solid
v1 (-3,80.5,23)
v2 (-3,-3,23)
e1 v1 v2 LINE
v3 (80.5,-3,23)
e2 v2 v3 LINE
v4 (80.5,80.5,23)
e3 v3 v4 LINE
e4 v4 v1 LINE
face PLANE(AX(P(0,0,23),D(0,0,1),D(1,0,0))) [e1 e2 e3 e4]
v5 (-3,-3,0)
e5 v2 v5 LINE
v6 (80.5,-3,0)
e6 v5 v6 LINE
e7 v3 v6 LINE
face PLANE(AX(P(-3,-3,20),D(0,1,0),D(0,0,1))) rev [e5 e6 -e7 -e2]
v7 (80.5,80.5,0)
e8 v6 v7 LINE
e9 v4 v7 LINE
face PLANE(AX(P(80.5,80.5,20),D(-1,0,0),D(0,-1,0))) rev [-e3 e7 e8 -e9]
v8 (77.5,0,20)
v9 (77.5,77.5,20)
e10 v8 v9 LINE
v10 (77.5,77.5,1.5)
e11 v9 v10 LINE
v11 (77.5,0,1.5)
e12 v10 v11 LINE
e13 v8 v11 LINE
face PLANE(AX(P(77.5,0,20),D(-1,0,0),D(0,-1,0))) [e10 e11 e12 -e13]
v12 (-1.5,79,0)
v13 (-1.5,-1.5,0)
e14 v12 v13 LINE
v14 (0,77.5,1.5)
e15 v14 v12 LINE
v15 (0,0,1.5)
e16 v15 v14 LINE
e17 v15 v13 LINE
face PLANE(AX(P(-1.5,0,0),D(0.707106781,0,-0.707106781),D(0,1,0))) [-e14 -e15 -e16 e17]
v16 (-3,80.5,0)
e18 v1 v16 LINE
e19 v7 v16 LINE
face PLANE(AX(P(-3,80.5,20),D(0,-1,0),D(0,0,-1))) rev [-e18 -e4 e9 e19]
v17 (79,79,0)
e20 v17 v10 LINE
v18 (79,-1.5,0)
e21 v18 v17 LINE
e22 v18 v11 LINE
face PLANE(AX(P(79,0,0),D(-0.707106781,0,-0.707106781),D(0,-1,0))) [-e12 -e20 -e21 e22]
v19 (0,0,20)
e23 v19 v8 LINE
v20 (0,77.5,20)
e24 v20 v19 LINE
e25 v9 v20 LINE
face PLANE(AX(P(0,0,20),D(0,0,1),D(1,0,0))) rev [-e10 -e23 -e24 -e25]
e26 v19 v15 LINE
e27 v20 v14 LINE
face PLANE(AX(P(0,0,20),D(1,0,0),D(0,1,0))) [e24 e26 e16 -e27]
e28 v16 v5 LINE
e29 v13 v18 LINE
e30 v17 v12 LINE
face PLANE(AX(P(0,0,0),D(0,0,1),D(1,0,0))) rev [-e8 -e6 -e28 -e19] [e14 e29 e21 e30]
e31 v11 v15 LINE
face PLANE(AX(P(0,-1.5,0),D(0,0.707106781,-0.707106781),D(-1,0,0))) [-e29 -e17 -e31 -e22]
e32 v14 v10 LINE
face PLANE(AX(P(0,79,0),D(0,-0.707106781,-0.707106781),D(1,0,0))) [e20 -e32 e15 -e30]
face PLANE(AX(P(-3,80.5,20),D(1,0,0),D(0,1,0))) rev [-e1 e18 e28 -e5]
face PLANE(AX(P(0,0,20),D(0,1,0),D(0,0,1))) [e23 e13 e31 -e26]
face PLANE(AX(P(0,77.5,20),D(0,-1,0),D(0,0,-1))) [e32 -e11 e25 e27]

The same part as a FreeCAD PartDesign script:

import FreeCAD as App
import Part
import Sketcher
Q = App.Units.Quantity


def edges_at(feature, points):
    """Names of the edges that pass closest to the given points."""
    edges = feature.Shape.Edges
    near = lambda p: min(range(len(edges)), key=lambda i: edges[i].distToShape(Part.Vertex(*p))[0])
    return sorted({f"Edge{near(p) + 1}" for p in points})

doc = App.newDocument("Part")
body = doc.addObject("PartDesign::Body", "Body")

sketch1 = body.newObject("Sketcher::SketchObject", "Sketch")
sketch1.AttachmentSupport = (doc.getObject("XY_Plane"), [""])
sketch1.MapMode = "FlatFace"
sketch1.addGeometry([
    Part.LineSegment(App.Vector(-3, 80, 0), App.Vector(-3, -3, 0)),
    Part.LineSegment(App.Vector(-3, -3, 0), App.Vector(80, -3, 0)),
    Part.LineSegment(App.Vector(80, -3, 0), App.Vector(80, 80, 0)),
    Part.LineSegment(App.Vector(80, 80, 0), App.Vector(-3, 80, 0)),
    Part.LineSegment(App.Vector(78, 0, 0), App.Vector(0, 0, 0)),
    Part.LineSegment(App.Vector(0, 0, 0), App.Vector(0, 78, 0)),
    Part.LineSegment(App.Vector(0, 78, 0), App.Vector(78, 78, 0)),
    Part.LineSegment(App.Vector(78, 78, 0), App.Vector(78, 0, 0)),
], False)
sketch1.addConstraint([
    Sketcher.Constraint("Coincident", 0, 2, 1, 1),
    Sketcher.Constraint("Coincident", 1, 2, 2, 1),
    Sketcher.Constraint("Coincident", 2, 2, 3, 1),
    Sketcher.Constraint("Coincident", 3, 2, 0, 1),
    Sketcher.Constraint("Coincident", 4, 2, 5, 1),
    Sketcher.Constraint("Coincident", 5, 2, 6, 1),
    Sketcher.Constraint("Coincident", 6, 2, 7, 1),
    Sketcher.Constraint("Coincident", 7, 2, 4, 1),
    Sketcher.Constraint("Vertical", 0),
    Sketcher.Constraint("Horizontal", 1),
    Sketcher.Constraint("Vertical", 2),
    Sketcher.Constraint("Horizontal", 3),
    Sketcher.Constraint("Horizontal", 4),
    Sketcher.Constraint("Vertical", 5),
    Sketcher.Constraint("Horizontal", 6),
    Sketcher.Constraint("Vertical", 7),
    Sketcher.Constraint("Coincident", 4, 2, -1, 1),
    Sketcher.Constraint("Equal", 3, 0),
    Sketcher.Constraint("Equal", 6, 5),
    Sketcher.Constraint("DistanceX", 1, 1, 1, 2, Q("83.5 mm")),
    Sketcher.Constraint("DistanceX", 4, 2, 4, 1, Q("77.5 mm")),
    Sketcher.Constraint("DistanceX", 0, 2, -1, 1, Q("3 mm")),
    Sketcher.Constraint("DistanceY", 0, 2, -1, 1, Q("3 mm")),
])
pad1 = body.newObject("PartDesign::Pad", "Pad")
pad1.Profile = sketch1
pad1.Length = 20
doc.recompute()

chamfer = body.newObject("PartDesign::Chamfer", "Chamfer")
chamfer.Base = (pad1, edges_at(pad1, [
    (0, 38.75, 0),
    (38.75, 0, 0),
    (77.5, 38.75, 0),
    (38.75, 77.5, 0),
]))
chamfer.Size = 1.5

sketch2 = body.newObject("Sketcher::SketchObject", "Sketch001")
sketch2.AttachmentSupport = (doc.getObject("XY_Plane"), [""])
sketch2.MapMode = "FlatFace"
sketch2.AttachmentOffset = App.Placement(App.Vector(0, 0, 20), App.Rotation())
sketch2.addGeometry([
    Part.LineSegment(App.Vector(-3, 80, 0), App.Vector(-3, -3, 0)),
    Part.LineSegment(App.Vector(-3, -3, 0), App.Vector(80, -3, 0)),
    Part.LineSegment(App.Vector(80, -3, 0), App.Vector(80, 80, 0)),
    Part.LineSegment(App.Vector(80, 80, 0), App.Vector(-3, 80, 0)),
], False)
sketch2.addConstraint([
    Sketcher.Constraint("Coincident", 0, 2, 1, 1),
    Sketcher.Constraint("Coincident", 1, 2, 2, 1),
    Sketcher.Constraint("Coincident", 2, 2, 3, 1),
    Sketcher.Constraint("Coincident", 3, 2, 0, 1),
    Sketcher.Constraint("Vertical", 0),
    Sketcher.Constraint("Horizontal", 1),
    Sketcher.Constraint("Vertical", 2),
    Sketcher.Constraint("Horizontal", 3),
    Sketcher.Constraint("Equal", 3, 0),
    Sketcher.Constraint("DistanceX", 1, 1, 1, 2, Q("83.5 mm")),
    Sketcher.Constraint("DistanceX", 0, 2, -1, 1, Q("3 mm")),
    Sketcher.Constraint("DistanceY", 0, 2, -1, 1, Q("3 mm")),
])
pad2 = body.newObject("PartDesign::Pad", "Pad001")
pad2.Profile = sketch2
pad2.Length = 3

doc.recompute()
